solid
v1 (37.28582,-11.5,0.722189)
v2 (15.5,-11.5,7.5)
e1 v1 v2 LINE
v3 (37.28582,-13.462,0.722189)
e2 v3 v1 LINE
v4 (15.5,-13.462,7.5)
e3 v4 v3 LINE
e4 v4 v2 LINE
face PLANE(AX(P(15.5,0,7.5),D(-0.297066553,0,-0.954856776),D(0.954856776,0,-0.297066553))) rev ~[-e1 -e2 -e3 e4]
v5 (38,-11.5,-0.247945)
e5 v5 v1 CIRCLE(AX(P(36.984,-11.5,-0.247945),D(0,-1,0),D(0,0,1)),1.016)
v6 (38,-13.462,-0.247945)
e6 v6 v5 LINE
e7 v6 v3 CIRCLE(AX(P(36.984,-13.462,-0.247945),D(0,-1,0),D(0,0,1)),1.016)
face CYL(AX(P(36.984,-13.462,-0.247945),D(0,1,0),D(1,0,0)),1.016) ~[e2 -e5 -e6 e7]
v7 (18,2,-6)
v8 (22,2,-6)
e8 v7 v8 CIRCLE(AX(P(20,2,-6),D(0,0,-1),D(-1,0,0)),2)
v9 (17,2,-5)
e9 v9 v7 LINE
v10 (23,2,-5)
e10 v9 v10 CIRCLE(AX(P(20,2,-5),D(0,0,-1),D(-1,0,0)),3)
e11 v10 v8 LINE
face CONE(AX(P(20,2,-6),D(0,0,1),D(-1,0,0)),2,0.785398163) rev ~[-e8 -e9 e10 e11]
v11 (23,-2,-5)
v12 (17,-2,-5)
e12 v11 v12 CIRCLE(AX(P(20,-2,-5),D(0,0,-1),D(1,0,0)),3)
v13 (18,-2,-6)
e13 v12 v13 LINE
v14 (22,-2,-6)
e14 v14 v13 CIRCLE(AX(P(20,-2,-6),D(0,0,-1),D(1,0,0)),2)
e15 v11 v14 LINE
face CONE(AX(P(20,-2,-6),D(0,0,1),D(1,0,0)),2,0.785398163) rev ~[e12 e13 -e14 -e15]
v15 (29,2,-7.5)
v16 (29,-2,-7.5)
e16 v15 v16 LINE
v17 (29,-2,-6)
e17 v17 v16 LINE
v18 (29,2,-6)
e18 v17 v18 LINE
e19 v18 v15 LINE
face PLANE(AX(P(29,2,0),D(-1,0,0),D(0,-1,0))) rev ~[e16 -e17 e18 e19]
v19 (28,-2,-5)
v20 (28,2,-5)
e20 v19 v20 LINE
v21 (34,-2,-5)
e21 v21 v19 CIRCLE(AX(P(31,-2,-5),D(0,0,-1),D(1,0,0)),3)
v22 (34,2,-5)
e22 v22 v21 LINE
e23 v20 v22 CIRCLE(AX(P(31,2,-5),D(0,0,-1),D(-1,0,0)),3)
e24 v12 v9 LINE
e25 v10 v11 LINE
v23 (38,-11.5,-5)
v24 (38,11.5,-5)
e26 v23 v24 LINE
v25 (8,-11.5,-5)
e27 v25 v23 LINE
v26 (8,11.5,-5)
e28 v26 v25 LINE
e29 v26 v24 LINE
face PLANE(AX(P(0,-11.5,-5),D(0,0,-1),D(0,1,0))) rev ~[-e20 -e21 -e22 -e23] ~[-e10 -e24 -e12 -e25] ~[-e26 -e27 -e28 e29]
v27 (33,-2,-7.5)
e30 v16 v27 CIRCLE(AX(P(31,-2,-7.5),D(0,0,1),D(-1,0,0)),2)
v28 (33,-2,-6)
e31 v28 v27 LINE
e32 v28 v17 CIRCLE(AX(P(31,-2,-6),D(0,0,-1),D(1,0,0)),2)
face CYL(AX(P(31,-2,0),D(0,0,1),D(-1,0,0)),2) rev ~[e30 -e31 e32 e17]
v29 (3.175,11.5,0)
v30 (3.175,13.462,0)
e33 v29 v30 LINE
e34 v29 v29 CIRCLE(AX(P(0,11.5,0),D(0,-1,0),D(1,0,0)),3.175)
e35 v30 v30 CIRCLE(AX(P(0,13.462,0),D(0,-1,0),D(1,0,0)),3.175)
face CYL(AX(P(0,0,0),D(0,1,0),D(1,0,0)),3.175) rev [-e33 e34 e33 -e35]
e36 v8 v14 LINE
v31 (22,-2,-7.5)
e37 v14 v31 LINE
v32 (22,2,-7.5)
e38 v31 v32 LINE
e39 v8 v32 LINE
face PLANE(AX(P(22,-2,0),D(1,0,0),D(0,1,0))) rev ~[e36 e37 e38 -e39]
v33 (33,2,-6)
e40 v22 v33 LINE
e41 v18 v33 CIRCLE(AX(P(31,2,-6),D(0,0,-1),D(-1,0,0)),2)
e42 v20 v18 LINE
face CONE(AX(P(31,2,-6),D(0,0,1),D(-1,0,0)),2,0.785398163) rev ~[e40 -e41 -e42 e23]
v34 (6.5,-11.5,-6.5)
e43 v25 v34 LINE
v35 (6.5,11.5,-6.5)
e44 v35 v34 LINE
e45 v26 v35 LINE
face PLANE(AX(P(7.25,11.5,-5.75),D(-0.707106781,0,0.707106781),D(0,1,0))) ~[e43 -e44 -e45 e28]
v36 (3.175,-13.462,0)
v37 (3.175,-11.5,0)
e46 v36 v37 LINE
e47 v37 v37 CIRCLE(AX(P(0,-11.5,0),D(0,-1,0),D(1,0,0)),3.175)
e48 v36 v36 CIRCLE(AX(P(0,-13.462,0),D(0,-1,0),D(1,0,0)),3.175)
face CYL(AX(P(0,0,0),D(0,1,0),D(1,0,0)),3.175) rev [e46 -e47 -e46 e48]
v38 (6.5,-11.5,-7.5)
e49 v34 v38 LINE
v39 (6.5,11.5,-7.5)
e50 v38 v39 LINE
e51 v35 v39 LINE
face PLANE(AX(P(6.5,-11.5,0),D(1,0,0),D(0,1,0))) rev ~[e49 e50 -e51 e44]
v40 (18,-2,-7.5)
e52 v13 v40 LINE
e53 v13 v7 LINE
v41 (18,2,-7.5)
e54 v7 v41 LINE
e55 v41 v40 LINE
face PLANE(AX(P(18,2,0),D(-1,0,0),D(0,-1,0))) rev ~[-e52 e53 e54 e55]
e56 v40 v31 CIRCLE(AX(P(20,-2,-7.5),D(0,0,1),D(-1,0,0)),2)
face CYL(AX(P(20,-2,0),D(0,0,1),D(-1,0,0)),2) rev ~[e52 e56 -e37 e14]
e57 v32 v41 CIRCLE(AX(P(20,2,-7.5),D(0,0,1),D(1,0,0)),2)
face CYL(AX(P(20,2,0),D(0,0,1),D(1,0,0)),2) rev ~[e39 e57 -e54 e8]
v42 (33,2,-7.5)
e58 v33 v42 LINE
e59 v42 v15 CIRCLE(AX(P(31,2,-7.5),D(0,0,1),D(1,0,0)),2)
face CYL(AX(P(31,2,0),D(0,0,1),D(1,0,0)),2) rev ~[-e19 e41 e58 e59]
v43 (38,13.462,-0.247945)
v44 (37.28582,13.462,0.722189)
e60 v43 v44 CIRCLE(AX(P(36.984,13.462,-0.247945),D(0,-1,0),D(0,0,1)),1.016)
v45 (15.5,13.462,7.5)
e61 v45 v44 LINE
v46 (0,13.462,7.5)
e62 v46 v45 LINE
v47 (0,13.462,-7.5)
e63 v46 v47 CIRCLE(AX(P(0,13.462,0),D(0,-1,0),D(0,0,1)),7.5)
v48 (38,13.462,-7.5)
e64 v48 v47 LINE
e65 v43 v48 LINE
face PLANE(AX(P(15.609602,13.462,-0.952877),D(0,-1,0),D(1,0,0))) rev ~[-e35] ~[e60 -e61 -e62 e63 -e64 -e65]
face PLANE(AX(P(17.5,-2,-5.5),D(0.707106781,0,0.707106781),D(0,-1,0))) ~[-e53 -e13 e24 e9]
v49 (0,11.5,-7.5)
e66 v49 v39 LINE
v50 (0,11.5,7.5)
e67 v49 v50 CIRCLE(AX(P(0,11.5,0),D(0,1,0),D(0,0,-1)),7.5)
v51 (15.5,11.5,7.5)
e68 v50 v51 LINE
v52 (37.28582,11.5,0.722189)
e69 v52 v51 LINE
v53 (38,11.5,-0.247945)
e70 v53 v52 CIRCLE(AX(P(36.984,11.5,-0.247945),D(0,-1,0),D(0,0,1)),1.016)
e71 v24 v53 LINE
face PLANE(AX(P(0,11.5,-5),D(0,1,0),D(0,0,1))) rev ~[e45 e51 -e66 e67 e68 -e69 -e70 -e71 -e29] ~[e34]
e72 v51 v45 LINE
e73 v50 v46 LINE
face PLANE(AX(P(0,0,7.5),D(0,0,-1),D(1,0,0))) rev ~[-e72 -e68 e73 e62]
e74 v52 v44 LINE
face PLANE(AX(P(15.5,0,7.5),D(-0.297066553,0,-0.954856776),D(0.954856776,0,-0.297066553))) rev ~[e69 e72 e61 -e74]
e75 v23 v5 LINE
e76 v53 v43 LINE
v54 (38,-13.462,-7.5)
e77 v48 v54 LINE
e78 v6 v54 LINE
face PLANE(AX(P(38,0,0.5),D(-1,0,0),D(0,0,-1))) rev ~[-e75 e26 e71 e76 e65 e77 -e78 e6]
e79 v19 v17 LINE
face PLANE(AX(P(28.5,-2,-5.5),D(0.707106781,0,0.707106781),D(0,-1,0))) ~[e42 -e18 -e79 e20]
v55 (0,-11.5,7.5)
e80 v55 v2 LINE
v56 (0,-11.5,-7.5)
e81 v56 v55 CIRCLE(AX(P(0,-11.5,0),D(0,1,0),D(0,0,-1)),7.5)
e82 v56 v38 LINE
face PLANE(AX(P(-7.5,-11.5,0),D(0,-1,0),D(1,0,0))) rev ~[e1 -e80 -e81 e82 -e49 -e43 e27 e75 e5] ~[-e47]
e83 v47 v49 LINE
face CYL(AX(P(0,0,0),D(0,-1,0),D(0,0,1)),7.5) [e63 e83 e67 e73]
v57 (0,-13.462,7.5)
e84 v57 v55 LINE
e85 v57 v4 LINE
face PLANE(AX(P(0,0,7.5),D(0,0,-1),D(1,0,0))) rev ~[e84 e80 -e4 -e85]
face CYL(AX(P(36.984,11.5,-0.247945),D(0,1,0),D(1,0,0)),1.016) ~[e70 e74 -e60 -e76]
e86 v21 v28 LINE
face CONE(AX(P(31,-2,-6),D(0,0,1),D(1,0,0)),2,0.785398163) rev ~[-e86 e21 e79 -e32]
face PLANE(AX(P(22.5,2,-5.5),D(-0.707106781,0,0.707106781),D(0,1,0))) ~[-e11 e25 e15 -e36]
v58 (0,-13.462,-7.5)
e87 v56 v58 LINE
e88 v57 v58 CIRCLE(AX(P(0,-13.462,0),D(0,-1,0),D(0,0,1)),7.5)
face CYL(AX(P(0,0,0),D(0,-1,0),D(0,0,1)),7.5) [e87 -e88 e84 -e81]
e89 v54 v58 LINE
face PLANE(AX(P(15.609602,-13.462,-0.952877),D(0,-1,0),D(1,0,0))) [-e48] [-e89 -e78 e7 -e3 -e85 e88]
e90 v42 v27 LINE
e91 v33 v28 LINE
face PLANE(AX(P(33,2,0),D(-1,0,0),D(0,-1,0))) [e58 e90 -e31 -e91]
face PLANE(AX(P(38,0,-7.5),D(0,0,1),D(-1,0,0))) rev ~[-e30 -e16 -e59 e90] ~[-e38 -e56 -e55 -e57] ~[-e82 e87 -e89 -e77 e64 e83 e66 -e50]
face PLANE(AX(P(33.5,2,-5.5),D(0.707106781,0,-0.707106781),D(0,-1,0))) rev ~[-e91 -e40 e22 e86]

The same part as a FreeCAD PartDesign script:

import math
import FreeCAD as App
import Part
import Sketcher
from FreeCAD import Vector
Q = App.Units.Quantity


def edges_at(feature, points):
    """Names of the edges that pass closest to the given points."""
    edges = feature.Shape.Edges
    near = lambda p: min(range(len(edges)), key=lambda i: edges[i].distToShape(Part.Vertex(*p))[0])
    return sorted({f"Edge{near(p) + 1}" for p in points})


def add_polygon(sketch, points):
    """Adds a closed chain of lines whose ends are joined by coincident constraints."""
    first, n = sketch.GeometryCount, len(points)
    for a, b in zip(points, points[1:] + points[:1]):
        sketch.addGeometry(Part.LineSegment(App.Vector(*a, 0), App.Vector(*b, 0)), False)
    for i in range(n):
        sketch.addConstraint(Sketcher.Constraint("Coincident", first + i, 2, first + (i + 1) % n, 1))

doc = App.newDocument("Part")
body = doc.addObject("PartDesign::Body", "Body")

sketch1 = body.newObject("Sketcher::SketchObject", "Sketch")
sketch1.AttachmentSupport = (doc.getObject("XZ_Plane"), [""])
sketch1.MapMode = "FlatFace"
sketch1.addGeometry([
    Part.ArcOfCircle(Part.Circle(Vector(0, 0, 0), Vector(0, 0, 1), 7.5), math.radians(90), math.radians(270)),
    Part.LineSegment(Vector(0, -7.5, 0), Vector(38, -7.5, 0)),
    Part.LineSegment(Vector(38, -7.5, 0), Vector(38, 0.5, 0)),
    Part.LineSegment(Vector(38, 0.5, 0), Vector(15.5, 7.5, 0)),
    Part.LineSegment(Vector(15.5, 7.5, 0), Vector(0, 7.5, 0)),
    Part.Circle(Vector(0, 0, 0), Vector(0, 0, 1), 3.2),
], False)
sketch1.addConstraint([
    Sketcher.Constraint("Tangent", 0, 2, 1, 1),
    Sketcher.Constraint("Coincident", 1, 2, 2, 1),
    Sketcher.Constraint("Coincident", 2, 2, 3, 1),
    Sketcher.Constraint("Coincident", 3, 2, 4, 1),
    Sketcher.Constraint("Tangent", 4, 2, 0, 1),
    Sketcher.Constraint("Horizontal", 1),
    Sketcher.Constraint("Vertical", 2),
    Sketcher.Constraint("Horizontal", 4),
    Sketcher.Constraint("Coincident", 0, 3, -1, 1),
    Sketcher.Constraint("Coincident", 5, 3, -1, 1),
    Sketcher.Constraint("Radius", 0, Q("7.5 mm")),
    Sketcher.Constraint("Diameter", 5, Q("6.35 mm")),
    Sketcher.Constraint("DistanceX", 1, 1, 1, 2, Q("38 mm")),
    Sketcher.Constraint("DistanceY", 2, 1, 2, 2, Q("8 mm")),
    Sketcher.Constraint("DistanceX", 4, 2, 4, 1, Q("15.5 mm")),
])
pad1 = body.newObject("PartDesign::Pad", "Pad")
pad1.Profile = sketch1
pad1.Length = 26.924
pad1.Midplane = True

sketch2 = body.newObject("Sketcher::SketchObject", "Sketch001")
sketch2.AttachmentSupport = (doc.getObject("YZ_Plane"), [""])
sketch2.MapMode = "FlatFace"
add_polygon(sketch2, [(-12, 8), (-12, -5), (12, -5), (12, 8)])
sketch2.addConstraint([
    Sketcher.Constraint("Vertical", 0),
    Sketcher.Constraint("Horizontal", 1),
    Sketcher.Constraint("Vertical", 2),
    Sketcher.Constraint("Horizontal", 3),
    Sketcher.Constraint("DistanceX", 1, 1, 1, 2, Q("23 mm")),
    Sketcher.Constraint("DistanceY", 0, 2, 0, 1, Q("13 mm")),
    Sketcher.Constraint("DistanceY", 0, 2, -1, 1, Q("5 mm")),
    Sketcher.Constraint("DistanceX", 0, 2, -1, 1, Q("11.5 mm")),
])
pocket1 = body.newObject("PartDesign::Pocket", "Pocket")
pocket1.Profile = sketch2
pocket1.Type = "ThroughAll"
pocket1.Midplane = True

sketch3 = body.newObject("Sketcher::SketchObject", "Sketch002")
sketch3.AttachmentSupport = (doc.getObject("XY_Plane"), [""])
sketch3.MapMode = "FlatFace"
add_polygon(sketch3, [(-7.5, 11.5), (-7.5, -11.5), (6.5, -11.5), (6.5, 11.5)])
sketch3.addGeometry(Part.LineSegment(Vector(18, 2, 0), Vector(18, -2, 0)), False)
sketch3.addGeometry(Part.ArcOfCircle(Part.Circle(Vector(20, -2, 0), Vector(0, 0, 1), 2), math.radians(180), math.radians(360)), False)
sketch3.addGeometry(Part.LineSegment(Vector(22, -2, 0), Vector(22, 2, 0)), False)
sketch3.addGeometry(Part.ArcOfCircle(Part.Circle(Vector(20, 2, 0), Vector(0, 0, 1), 2), math.radians(0), math.radians(180)), False)
sketch3.addGeometry(Part.LineSegment(Vector(29, 2, 0), Vector(29, -2, 0)), False)
sketch3.addGeometry(Part.ArcOfCircle(Part.Circle(Vector(31, -2, 0), Vector(0, 0, 1), 2), math.radians(180), math.radians(360)), False)
sketch3.addGeometry(Part.LineSegment(Vector(33, -2, 0), Vector(33, 2, 0)), False)
sketch3.addGeometry(Part.ArcOfCircle(Part.Circle(Vector(31, 2, 0), Vector(0, 0, 1), 2), math.radians(0), math.radians(180)), False)
sketch3.addConstraint([
    Sketcher.Constraint("Tangent", 4, 2, 5, 1),
    Sketcher.Constraint("Tangent", 5, 2, 6, 1),
    Sketcher.Constraint("Tangent", 6, 2, 7, 1),
    Sketcher.Constraint("Tangent", 7, 2, 4, 1),
    Sketcher.Constraint("Tangent", 8, 2, 9, 1),
    Sketcher.Constraint("Tangent", 9, 2, 10, 1),
    Sketcher.Constraint("Tangent", 10, 2, 11, 1),
    Sketcher.Constraint("Tangent", 11, 2, 8, 1),
    Sketcher.Constraint("Vertical", 0),
    Sketcher.Constraint("Horizontal", 1),
    Sketcher.Constraint("Vertical", 2),
    Sketcher.Constraint("Horizontal", 3),
    Sketcher.Constraint("Vertical", 4),
    Sketcher.Constraint("Vertical", 6),
    Sketcher.Constraint("Vertical", 8),
    Sketcher.Constraint("Vertical", 10),
    Sketcher.Constraint("Equal", 7, 9),
    Sketcher.Constraint("Horizontal", 5, 3, 9, 3),
    Sketcher.Constraint("Horizontal", 7, 3, 11, 3),
    Sketcher.Constraint("Radius", 5, Q("2 mm")),
    Sketcher.Constraint("DistanceX", 1, 1, 1, 2, Q("14 mm")),
    Sketcher.Constraint("DistanceY", 0, 2, 0, 1, Q("23 mm")),
    Sketcher.Constraint("DistanceY", 4, 2, 4, 1, Q("4 mm")),
    Sketcher.Constraint("DistanceX", -1, 1, 5, 3, Q("20 mm")),
    Sketcher.Constraint("DistanceY", 5, 3, -1, 1, Q("2 mm")),
    Sketcher.Constraint("DistanceX", -1, 1, 9, 3, Q("31 mm")),
    Sketcher.Constraint("DistanceX", 0, 2, -1, 1, Q("7.5 mm")),
    Sketcher.Constraint("DistanceY", 0, 2, -1, 1, Q("11.5 mm")),
])
pocket2 = body.newObject("PartDesign::Pocket", "Pocket001")
pocket2.Profile = sketch3
pocket2.Type = "ThroughAll"
pocket2.Midplane = True
doc.recompute()

chamfer = body.newObject("PartDesign::Chamfer", "Chamfer")
chamfer.Base = (pocket2, edges_at(pocket2, [(6.5, 0, -5)]))
chamfer.Size = 1.5
doc.recompute()

fillet = body.newObject("PartDesign::Fillet", "Fillet")
fillet.Base = (chamfer, edges_at(chamfer, [(38, 12.481, 0.5)]))
fillet.Radius = 1.016
doc.recompute()

fillet2 = body.newObject("PartDesign::Fillet", "Fillet001")
fillet2.Base = (fillet, edges_at(fillet, [(38, -12.481, 0.5)]))
fillet2.Radius = 1.016
doc.recompute()

chamfer2 = body.newObject("PartDesign::Chamfer", "Chamfer001")
chamfer2.Base = (fillet2, edges_at(fillet2, [
    (29, 0, -5),
    (31, 4, -5),
    (33, 0, -5),
    (31, -4, -5),
]))
chamfer2.Size = 1
doc.recompute()

chamfer3 = body.newObject("PartDesign::Chamfer", "Chamfer002")
chamfer3.Base = (chamfer2, edges_at(chamfer2, [
    (22, 0, -5),
    (20, 4, -5),
    (18, 0, -5),
    (20, -4, -5),
]))
chamfer3.Size = 1

doc.recompute()
